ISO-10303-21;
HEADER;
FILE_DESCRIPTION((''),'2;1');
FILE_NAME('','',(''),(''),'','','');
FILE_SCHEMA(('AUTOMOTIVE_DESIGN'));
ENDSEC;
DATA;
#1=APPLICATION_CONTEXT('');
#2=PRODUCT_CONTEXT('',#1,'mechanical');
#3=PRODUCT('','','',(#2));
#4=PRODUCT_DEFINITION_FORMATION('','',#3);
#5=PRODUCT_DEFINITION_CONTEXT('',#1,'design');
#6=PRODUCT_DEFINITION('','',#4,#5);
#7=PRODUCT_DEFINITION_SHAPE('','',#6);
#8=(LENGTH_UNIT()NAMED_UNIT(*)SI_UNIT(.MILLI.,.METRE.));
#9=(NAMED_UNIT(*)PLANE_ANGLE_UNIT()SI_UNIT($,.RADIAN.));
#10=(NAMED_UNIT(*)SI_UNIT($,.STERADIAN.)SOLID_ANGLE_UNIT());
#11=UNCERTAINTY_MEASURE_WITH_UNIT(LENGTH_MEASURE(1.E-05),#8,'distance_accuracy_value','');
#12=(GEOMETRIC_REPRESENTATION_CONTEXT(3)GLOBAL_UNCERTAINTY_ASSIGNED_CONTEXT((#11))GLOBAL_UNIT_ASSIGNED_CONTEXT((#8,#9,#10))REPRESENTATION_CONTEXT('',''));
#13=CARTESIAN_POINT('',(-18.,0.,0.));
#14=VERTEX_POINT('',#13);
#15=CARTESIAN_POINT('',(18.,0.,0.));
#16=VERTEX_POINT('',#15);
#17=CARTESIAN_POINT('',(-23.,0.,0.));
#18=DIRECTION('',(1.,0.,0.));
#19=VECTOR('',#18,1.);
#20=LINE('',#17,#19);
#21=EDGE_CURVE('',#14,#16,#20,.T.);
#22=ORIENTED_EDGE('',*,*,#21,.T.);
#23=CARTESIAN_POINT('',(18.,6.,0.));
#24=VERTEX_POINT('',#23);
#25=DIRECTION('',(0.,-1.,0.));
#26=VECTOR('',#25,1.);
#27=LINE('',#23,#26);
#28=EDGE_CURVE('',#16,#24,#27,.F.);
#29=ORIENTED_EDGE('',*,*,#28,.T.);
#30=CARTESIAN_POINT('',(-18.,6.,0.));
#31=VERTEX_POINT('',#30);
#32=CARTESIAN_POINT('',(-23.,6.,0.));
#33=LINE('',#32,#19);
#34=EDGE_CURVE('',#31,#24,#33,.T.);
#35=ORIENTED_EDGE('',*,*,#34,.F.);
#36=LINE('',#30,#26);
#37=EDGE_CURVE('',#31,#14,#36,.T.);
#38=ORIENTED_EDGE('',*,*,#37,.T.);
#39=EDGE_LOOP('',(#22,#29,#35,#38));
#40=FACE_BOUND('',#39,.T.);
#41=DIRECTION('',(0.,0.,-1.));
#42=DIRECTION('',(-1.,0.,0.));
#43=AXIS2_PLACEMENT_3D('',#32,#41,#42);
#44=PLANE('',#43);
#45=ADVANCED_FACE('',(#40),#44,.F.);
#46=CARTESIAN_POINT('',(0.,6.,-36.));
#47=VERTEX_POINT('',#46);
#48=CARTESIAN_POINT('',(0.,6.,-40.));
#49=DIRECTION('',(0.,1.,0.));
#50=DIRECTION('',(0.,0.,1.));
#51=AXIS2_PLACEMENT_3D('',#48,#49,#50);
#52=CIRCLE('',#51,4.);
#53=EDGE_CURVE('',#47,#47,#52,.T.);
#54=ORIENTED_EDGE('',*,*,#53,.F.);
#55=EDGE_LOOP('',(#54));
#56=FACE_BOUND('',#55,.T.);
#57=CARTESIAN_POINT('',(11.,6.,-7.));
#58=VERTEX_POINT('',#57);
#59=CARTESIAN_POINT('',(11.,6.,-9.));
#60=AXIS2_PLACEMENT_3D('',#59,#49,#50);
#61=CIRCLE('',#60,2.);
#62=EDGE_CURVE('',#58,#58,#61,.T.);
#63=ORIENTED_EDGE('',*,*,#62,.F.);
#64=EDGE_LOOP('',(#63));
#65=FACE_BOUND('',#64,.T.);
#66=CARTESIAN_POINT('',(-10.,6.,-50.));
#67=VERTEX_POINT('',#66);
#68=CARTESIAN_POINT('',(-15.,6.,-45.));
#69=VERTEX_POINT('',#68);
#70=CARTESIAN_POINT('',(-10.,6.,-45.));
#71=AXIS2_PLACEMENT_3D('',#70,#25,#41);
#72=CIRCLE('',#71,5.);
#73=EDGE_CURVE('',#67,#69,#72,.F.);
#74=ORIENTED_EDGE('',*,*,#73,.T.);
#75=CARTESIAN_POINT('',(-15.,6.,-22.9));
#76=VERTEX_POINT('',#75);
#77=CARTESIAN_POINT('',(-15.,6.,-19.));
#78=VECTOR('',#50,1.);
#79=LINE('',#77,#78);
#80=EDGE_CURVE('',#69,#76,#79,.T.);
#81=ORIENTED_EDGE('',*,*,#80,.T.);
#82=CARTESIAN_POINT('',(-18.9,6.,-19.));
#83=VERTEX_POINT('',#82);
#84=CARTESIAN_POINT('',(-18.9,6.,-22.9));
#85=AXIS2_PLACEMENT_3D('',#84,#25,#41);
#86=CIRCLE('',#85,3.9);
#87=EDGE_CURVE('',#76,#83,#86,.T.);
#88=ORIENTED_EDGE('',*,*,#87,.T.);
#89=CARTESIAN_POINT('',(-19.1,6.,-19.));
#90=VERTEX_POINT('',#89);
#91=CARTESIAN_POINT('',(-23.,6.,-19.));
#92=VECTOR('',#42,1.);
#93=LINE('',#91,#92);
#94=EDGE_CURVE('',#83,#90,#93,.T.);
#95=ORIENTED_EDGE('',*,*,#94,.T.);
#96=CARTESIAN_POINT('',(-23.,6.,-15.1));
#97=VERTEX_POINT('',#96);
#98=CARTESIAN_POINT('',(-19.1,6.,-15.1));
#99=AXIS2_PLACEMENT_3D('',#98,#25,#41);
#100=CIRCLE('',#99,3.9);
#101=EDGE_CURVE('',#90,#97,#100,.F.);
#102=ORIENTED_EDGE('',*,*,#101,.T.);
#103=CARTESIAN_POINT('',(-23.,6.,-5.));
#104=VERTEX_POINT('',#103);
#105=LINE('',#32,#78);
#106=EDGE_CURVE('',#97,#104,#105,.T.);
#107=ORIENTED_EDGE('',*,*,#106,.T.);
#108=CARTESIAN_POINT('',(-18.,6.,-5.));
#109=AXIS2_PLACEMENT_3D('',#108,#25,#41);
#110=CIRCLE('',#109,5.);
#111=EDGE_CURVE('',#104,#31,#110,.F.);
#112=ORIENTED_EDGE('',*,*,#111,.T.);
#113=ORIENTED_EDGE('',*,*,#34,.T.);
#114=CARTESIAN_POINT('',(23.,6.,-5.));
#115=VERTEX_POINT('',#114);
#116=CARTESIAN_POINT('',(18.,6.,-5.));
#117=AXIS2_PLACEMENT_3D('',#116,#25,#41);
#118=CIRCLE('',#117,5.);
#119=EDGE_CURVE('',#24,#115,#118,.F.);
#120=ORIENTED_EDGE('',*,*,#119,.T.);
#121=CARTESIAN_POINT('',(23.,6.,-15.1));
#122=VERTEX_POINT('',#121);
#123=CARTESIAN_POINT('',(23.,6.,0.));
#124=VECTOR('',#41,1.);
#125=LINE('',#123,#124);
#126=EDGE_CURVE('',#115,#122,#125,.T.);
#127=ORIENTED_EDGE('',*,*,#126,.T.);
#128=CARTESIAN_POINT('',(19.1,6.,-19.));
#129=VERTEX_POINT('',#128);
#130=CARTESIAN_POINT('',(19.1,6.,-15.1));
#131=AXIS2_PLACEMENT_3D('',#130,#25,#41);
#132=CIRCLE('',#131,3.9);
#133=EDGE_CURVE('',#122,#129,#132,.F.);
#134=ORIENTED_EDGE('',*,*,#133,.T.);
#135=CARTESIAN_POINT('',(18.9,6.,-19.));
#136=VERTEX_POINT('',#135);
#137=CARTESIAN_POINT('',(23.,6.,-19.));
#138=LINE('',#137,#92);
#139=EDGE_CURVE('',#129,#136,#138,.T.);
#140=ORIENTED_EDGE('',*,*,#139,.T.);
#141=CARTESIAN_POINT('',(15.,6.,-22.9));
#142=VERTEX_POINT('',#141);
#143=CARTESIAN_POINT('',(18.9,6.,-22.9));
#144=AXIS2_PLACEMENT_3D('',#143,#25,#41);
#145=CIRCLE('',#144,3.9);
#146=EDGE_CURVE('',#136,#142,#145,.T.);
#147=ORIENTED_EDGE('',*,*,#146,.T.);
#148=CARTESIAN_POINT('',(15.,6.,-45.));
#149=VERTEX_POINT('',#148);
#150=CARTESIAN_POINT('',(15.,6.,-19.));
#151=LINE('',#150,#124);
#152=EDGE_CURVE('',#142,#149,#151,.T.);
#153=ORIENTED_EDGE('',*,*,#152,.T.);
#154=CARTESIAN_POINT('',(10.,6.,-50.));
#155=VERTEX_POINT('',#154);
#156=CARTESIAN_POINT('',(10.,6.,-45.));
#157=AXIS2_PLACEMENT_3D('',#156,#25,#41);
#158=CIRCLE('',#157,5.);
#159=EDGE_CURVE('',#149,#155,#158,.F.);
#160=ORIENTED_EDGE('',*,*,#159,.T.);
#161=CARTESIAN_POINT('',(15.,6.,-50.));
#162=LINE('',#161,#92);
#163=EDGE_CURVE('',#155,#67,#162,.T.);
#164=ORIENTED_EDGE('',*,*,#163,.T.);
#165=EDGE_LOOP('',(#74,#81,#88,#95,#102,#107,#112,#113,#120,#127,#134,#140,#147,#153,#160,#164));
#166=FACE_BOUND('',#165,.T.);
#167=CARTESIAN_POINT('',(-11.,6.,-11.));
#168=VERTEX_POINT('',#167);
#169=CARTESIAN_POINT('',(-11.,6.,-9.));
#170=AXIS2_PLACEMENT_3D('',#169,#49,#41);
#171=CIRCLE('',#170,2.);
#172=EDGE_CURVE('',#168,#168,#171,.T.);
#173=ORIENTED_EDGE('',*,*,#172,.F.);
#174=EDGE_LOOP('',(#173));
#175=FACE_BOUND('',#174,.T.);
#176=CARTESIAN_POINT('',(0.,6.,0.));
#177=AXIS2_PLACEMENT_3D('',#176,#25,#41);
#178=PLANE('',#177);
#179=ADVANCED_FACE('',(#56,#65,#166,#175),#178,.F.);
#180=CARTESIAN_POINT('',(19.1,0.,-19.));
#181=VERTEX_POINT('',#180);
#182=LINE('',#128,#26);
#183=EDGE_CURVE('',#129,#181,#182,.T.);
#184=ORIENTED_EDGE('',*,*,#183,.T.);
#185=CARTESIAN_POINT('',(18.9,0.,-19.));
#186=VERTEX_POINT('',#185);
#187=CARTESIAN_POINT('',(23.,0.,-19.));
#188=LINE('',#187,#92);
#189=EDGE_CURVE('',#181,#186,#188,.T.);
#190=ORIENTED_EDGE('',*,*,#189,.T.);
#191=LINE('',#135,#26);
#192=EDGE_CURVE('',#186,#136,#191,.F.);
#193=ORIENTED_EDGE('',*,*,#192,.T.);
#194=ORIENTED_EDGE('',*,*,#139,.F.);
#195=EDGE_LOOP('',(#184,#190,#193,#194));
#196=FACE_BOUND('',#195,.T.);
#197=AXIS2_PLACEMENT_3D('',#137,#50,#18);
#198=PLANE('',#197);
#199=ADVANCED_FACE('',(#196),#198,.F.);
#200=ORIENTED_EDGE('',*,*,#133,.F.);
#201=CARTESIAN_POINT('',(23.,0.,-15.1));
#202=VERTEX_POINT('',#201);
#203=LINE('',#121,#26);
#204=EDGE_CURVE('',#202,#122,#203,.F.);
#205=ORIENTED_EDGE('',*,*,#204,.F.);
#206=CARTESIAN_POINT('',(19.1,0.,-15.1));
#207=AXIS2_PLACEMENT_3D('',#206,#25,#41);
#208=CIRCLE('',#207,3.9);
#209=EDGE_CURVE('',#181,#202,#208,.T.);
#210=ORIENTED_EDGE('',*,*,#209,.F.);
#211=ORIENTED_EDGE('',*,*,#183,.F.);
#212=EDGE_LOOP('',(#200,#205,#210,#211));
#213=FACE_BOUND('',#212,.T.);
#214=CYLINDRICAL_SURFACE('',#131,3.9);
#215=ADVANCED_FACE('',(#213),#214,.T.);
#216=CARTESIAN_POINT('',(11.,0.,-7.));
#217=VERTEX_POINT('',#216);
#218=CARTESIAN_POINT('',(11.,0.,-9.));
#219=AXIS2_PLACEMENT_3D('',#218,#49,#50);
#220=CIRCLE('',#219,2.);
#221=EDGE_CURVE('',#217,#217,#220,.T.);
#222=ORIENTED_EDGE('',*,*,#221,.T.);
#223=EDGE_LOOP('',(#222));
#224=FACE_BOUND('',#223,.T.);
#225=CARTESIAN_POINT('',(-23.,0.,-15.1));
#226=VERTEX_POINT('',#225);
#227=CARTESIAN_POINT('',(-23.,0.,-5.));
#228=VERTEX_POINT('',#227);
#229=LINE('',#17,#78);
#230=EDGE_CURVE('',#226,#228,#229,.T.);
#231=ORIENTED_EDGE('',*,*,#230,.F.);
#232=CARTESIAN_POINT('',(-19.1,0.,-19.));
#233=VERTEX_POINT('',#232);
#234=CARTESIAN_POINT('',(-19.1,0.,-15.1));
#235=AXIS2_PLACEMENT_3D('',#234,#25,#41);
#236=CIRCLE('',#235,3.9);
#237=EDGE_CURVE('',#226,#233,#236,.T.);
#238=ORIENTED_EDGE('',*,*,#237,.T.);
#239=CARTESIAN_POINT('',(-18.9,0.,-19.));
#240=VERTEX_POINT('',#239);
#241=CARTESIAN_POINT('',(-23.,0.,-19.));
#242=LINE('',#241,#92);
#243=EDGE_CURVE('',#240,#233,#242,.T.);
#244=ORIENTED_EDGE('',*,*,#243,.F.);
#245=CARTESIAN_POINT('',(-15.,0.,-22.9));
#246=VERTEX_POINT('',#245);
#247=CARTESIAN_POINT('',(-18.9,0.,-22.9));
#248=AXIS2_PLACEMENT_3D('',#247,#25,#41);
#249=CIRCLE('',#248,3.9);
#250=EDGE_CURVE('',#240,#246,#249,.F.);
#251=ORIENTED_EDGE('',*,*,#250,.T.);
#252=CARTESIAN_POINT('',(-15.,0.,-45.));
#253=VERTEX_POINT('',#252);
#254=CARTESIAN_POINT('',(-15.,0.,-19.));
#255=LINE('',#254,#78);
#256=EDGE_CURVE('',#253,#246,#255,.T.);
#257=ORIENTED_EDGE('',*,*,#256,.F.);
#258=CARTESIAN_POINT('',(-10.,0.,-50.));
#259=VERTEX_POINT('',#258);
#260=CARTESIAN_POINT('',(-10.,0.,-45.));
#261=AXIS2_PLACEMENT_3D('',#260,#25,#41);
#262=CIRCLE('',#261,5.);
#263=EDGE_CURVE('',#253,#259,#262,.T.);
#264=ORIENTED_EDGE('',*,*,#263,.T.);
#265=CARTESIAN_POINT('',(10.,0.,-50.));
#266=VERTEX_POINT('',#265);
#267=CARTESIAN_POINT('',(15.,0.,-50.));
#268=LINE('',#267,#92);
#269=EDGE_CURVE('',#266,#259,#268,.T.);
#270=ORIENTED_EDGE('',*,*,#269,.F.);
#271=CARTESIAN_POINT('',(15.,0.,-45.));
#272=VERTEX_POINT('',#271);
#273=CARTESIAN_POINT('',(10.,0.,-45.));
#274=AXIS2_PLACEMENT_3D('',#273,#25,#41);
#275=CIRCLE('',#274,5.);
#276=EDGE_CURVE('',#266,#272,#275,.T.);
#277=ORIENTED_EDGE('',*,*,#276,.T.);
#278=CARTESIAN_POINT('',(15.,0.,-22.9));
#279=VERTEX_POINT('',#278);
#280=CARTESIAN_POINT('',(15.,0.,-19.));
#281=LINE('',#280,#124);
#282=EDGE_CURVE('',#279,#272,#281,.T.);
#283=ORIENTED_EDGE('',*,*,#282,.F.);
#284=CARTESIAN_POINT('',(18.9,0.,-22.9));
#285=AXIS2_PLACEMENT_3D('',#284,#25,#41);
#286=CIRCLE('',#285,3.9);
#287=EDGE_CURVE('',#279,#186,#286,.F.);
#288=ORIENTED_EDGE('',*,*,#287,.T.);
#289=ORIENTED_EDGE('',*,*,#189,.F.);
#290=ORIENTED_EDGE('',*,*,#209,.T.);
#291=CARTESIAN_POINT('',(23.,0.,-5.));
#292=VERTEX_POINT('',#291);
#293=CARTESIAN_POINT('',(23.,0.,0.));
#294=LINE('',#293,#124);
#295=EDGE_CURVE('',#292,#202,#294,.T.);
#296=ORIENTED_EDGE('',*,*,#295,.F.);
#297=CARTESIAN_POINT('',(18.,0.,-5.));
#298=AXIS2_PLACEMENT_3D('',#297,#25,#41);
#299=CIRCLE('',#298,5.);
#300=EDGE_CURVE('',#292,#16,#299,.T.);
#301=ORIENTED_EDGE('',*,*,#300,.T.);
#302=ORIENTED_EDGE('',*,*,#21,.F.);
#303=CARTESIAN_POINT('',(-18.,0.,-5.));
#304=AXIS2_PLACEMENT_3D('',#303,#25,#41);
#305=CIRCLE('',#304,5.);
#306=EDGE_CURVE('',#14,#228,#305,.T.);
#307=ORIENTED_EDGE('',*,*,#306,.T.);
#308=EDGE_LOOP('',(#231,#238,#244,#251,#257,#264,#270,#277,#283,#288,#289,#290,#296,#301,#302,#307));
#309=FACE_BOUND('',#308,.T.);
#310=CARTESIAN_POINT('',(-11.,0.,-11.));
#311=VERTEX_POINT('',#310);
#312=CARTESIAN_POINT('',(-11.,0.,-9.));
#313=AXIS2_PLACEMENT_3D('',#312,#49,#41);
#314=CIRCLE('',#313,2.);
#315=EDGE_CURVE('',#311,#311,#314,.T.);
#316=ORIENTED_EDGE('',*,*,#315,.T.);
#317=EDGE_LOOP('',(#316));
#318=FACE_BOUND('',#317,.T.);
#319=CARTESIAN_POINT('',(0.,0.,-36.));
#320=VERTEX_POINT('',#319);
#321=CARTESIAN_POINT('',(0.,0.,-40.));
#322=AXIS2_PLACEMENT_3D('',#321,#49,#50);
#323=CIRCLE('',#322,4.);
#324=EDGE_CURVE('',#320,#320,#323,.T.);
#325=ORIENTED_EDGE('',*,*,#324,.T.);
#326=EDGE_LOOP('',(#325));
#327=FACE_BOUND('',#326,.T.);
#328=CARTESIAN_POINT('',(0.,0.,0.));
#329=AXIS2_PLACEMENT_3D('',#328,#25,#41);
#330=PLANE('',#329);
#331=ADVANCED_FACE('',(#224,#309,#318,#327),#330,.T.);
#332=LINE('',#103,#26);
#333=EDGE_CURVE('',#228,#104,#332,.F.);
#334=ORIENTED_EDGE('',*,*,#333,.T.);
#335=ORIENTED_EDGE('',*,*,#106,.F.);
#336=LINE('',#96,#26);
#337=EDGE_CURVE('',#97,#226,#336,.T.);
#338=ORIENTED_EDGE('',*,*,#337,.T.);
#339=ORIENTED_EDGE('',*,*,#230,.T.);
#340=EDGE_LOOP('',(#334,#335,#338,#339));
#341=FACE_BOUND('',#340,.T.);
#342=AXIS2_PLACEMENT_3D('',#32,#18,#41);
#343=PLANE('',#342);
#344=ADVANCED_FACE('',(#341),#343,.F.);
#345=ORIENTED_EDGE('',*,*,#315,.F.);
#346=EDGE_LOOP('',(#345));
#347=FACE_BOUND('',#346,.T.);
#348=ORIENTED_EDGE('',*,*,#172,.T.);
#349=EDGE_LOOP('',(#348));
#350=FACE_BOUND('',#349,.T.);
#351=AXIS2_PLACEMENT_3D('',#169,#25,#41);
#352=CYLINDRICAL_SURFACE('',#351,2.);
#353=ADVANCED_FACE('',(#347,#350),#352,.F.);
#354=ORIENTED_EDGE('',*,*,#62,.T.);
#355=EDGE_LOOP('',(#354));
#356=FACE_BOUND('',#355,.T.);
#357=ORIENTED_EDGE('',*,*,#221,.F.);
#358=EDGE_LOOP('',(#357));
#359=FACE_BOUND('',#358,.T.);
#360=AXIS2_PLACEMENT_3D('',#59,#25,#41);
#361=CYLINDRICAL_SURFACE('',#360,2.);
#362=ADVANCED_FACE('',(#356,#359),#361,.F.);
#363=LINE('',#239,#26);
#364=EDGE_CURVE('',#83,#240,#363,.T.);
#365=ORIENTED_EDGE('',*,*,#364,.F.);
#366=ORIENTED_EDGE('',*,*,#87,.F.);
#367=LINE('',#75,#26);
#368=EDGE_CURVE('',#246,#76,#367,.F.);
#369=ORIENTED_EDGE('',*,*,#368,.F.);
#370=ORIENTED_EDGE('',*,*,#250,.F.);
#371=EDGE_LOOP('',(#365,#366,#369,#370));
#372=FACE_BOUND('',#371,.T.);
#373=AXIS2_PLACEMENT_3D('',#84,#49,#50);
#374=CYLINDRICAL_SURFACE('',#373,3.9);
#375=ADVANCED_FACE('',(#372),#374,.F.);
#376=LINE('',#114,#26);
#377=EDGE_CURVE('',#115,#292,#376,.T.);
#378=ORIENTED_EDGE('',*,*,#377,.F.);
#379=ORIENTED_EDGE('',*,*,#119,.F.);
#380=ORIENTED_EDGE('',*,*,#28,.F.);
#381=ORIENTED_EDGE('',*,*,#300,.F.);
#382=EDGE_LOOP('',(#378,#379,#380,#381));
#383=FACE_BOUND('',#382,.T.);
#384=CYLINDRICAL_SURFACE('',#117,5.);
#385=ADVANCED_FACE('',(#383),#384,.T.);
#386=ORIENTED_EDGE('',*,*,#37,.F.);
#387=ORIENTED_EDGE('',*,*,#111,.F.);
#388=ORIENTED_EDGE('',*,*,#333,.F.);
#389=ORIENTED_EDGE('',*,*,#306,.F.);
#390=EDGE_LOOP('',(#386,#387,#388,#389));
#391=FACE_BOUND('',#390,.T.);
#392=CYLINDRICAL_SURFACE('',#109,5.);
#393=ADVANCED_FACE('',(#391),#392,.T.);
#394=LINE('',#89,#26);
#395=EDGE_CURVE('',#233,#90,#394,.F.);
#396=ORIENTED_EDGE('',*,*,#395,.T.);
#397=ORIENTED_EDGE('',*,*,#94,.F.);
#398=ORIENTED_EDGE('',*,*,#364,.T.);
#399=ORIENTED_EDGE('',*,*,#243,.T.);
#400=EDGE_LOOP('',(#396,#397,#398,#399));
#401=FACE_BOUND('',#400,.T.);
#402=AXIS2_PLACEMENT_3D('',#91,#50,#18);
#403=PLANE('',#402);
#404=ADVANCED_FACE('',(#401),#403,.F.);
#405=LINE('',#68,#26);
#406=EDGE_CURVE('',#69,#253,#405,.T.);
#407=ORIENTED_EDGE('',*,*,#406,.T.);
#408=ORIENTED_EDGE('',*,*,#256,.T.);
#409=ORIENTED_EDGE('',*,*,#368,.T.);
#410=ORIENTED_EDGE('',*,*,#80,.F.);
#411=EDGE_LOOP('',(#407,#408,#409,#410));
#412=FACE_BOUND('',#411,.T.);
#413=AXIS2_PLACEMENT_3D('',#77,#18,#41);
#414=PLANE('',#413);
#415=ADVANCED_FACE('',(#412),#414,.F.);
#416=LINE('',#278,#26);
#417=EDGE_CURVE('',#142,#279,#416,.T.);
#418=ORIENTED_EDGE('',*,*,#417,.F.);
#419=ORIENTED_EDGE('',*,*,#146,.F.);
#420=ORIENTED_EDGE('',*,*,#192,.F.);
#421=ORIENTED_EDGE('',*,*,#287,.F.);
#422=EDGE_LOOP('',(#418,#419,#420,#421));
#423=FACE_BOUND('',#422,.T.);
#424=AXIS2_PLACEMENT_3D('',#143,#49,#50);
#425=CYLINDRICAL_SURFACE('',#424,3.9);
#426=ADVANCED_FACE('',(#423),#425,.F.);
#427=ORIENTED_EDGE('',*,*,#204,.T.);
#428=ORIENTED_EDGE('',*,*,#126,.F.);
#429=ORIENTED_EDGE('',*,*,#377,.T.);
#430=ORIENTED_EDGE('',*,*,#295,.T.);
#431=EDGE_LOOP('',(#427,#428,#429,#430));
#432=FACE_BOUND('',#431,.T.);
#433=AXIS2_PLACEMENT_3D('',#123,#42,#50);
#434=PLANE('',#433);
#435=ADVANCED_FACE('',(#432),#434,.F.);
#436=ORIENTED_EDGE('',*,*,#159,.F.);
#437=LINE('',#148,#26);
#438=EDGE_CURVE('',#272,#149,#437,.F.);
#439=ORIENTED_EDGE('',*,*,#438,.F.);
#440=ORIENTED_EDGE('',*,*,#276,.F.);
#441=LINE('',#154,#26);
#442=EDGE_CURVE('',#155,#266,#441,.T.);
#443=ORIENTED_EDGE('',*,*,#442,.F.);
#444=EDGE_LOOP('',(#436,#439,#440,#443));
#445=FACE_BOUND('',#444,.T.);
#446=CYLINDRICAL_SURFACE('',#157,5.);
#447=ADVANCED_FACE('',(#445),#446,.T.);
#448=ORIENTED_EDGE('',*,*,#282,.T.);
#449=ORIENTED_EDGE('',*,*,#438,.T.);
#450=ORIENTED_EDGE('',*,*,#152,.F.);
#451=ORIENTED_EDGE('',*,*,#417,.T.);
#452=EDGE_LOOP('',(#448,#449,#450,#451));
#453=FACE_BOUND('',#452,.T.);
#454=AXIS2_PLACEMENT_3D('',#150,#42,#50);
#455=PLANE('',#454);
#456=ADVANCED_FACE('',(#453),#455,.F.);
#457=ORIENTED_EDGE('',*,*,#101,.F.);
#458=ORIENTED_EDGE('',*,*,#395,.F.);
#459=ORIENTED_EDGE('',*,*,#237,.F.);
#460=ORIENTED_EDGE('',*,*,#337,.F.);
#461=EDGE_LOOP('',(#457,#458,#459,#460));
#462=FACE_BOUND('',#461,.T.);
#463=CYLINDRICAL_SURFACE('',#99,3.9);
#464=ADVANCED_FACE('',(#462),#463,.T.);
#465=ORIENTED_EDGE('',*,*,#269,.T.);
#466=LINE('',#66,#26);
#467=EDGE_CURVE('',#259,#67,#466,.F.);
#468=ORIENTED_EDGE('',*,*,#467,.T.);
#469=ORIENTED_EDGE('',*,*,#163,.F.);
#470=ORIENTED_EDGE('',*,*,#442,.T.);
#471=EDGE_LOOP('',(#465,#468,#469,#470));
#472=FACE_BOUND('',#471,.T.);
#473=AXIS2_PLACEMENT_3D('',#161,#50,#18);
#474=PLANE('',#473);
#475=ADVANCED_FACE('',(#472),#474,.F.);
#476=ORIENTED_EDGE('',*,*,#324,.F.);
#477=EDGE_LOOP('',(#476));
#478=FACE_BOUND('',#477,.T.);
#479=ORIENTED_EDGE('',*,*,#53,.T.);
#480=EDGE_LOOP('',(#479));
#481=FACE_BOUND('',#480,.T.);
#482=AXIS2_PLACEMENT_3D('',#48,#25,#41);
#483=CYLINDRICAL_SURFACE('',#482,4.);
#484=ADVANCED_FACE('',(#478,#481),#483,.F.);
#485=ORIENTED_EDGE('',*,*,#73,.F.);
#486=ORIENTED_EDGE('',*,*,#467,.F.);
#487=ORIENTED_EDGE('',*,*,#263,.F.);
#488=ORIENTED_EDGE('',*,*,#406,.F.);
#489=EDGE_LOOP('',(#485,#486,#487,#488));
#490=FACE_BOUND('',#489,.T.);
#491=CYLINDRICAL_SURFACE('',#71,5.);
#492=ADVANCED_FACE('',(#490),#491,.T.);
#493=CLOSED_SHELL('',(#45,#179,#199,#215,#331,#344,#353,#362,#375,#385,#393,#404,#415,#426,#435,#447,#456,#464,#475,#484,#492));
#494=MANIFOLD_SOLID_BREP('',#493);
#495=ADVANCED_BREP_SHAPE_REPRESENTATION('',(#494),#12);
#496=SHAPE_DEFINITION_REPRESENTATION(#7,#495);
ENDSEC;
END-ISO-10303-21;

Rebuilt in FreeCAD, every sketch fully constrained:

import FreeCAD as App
import Part
import Sketcher

V = App.Vector


def edges_at(feature, points):
    """Names of the edges that pass closest to the given points."""
    edges = feature.Shape.Edges
    near = lambda p: min(range(len(edges)), key=lambda i: edges[i].distToShape(Part.Vertex(*p))[0])
    return sorted({f"Edge{near(p) + 1}" for p in points})


def add_polygon(sketch, points):
    """Adds a closed chain of lines whose ends are joined by coincident constraints."""
    first, n = sketch.GeometryCount, len(points)
    for a, b in zip(points, points[1:] + points[:1]):
        sketch.addGeometry(Part.LineSegment(App.Vector(*a, 0), App.Vector(*b, 0)), False)
    for i in range(n):
        sketch.addConstraint(Sketcher.Constraint("Coincident", first + i, 2, first + (i + 1) % n, 1))

doc = App.newDocument("Part")
body = doc.addObject("PartDesign::Body", "Body")

# Sketch on XZ plane
sketch1 = body.newObject("Sketcher::SketchObject", "Sketch")
sketch1.AttachmentSupport = (doc.getObject("XZ_Plane"), [""])
sketch1.MapMode = "FlatFace"
add_polygon(sketch1, [(-23, 0), (23, 0), (23, -19), (15, -19), (15, -50), (-15, -50), (-15, -19), (-23, -19)])  # lines 0-7
sketch1.addGeometry(Part.Circle(V(-11, -9, 0), V(0, 0, 1), 2), False)  # 8
sketch1.addGeometry(Part.Circle(V(11, -9, 0), V(0, 0, 1), 2), False)  # 9
sketch1.addGeometry(Part.Circle(V(0, -40, 0), V(0, 0, 1), 4), False)  # 10
sketch1.addConstraint([
    Sketcher.Constraint("Horizontal", 0),
    Sketcher.Constraint("Vertical", 1),
    Sketcher.Constraint("Horizontal", 2),
    Sketcher.Constraint("Vertical", 3),
    Sketcher.Constraint("Horizontal", 4),
    Sketcher.Constraint("Vertical", 5),
    Sketcher.Constraint("Horizontal", 6),
    Sketcher.Constraint("Vertical", 7),
    Sketcher.Constraint("Equal", 8, 9),
    Sketcher.Constraint("Symmetric", 0, 2, 7, 2, -1, 1),
    Sketcher.Constraint("Symmetric", 8, 3, 9, 3, -2),
    Sketcher.Constraint("Symmetric", 2, 2, 5, 2, -2),
    Sketcher.Constraint("PointOnObject", 10, 3, -2),
    Sketcher.Constraint("Diameter", 8, 4.0),
    Sketcher.Constraint("Diameter", 10, 8.0),
    Sketcher.Constraint("DistanceX", 0, 1, 0, 2, 46.0),
    Sketcher.Constraint("DistanceX", 2, 2, 2, 1, 8.0),
    Sketcher.Constraint("DistanceY", 1, 2, 1, 1, 19.0),
    Sketcher.Constraint("DistanceY", 3, 2, 3, 1, 31.0),
    Sketcher.Constraint("DistanceX", 8, 3, -1, 1, 11.0),
    Sketcher.Constraint("DistanceY", 8, 3, -1, 1, 9.0),
    Sketcher.Constraint("DistanceY", 10, 3, -1, 1, 40.0),
])
pad1 = body.newObject("PartDesign::Pad", "Pad")
pad1.Profile = sketch1
pad1.Length = 6
pad1.Reversed = True
doc.recompute()

fillet = body.newObject("PartDesign::Fillet", "Fillet")
fillet.Base = (pad1, edges_at(pad1, [
    (15, 3, -50),
    (23, 3, 0),
    (-23, 3, 0),
    (-15, 3, -50),
]))
fillet.Radius = 5
doc.recompute()

fillet2 = body.newObject("PartDesign::Fillet", "Fillet001")
fillet2.Base = (fillet, edges_at(fillet, [
    (15, 3, -19),
    (23, 3, -19),
    (-23, 3, -19),
    (-15, 3, -19),
]))
fillet2.Radius = 3.9

doc.recompute()
